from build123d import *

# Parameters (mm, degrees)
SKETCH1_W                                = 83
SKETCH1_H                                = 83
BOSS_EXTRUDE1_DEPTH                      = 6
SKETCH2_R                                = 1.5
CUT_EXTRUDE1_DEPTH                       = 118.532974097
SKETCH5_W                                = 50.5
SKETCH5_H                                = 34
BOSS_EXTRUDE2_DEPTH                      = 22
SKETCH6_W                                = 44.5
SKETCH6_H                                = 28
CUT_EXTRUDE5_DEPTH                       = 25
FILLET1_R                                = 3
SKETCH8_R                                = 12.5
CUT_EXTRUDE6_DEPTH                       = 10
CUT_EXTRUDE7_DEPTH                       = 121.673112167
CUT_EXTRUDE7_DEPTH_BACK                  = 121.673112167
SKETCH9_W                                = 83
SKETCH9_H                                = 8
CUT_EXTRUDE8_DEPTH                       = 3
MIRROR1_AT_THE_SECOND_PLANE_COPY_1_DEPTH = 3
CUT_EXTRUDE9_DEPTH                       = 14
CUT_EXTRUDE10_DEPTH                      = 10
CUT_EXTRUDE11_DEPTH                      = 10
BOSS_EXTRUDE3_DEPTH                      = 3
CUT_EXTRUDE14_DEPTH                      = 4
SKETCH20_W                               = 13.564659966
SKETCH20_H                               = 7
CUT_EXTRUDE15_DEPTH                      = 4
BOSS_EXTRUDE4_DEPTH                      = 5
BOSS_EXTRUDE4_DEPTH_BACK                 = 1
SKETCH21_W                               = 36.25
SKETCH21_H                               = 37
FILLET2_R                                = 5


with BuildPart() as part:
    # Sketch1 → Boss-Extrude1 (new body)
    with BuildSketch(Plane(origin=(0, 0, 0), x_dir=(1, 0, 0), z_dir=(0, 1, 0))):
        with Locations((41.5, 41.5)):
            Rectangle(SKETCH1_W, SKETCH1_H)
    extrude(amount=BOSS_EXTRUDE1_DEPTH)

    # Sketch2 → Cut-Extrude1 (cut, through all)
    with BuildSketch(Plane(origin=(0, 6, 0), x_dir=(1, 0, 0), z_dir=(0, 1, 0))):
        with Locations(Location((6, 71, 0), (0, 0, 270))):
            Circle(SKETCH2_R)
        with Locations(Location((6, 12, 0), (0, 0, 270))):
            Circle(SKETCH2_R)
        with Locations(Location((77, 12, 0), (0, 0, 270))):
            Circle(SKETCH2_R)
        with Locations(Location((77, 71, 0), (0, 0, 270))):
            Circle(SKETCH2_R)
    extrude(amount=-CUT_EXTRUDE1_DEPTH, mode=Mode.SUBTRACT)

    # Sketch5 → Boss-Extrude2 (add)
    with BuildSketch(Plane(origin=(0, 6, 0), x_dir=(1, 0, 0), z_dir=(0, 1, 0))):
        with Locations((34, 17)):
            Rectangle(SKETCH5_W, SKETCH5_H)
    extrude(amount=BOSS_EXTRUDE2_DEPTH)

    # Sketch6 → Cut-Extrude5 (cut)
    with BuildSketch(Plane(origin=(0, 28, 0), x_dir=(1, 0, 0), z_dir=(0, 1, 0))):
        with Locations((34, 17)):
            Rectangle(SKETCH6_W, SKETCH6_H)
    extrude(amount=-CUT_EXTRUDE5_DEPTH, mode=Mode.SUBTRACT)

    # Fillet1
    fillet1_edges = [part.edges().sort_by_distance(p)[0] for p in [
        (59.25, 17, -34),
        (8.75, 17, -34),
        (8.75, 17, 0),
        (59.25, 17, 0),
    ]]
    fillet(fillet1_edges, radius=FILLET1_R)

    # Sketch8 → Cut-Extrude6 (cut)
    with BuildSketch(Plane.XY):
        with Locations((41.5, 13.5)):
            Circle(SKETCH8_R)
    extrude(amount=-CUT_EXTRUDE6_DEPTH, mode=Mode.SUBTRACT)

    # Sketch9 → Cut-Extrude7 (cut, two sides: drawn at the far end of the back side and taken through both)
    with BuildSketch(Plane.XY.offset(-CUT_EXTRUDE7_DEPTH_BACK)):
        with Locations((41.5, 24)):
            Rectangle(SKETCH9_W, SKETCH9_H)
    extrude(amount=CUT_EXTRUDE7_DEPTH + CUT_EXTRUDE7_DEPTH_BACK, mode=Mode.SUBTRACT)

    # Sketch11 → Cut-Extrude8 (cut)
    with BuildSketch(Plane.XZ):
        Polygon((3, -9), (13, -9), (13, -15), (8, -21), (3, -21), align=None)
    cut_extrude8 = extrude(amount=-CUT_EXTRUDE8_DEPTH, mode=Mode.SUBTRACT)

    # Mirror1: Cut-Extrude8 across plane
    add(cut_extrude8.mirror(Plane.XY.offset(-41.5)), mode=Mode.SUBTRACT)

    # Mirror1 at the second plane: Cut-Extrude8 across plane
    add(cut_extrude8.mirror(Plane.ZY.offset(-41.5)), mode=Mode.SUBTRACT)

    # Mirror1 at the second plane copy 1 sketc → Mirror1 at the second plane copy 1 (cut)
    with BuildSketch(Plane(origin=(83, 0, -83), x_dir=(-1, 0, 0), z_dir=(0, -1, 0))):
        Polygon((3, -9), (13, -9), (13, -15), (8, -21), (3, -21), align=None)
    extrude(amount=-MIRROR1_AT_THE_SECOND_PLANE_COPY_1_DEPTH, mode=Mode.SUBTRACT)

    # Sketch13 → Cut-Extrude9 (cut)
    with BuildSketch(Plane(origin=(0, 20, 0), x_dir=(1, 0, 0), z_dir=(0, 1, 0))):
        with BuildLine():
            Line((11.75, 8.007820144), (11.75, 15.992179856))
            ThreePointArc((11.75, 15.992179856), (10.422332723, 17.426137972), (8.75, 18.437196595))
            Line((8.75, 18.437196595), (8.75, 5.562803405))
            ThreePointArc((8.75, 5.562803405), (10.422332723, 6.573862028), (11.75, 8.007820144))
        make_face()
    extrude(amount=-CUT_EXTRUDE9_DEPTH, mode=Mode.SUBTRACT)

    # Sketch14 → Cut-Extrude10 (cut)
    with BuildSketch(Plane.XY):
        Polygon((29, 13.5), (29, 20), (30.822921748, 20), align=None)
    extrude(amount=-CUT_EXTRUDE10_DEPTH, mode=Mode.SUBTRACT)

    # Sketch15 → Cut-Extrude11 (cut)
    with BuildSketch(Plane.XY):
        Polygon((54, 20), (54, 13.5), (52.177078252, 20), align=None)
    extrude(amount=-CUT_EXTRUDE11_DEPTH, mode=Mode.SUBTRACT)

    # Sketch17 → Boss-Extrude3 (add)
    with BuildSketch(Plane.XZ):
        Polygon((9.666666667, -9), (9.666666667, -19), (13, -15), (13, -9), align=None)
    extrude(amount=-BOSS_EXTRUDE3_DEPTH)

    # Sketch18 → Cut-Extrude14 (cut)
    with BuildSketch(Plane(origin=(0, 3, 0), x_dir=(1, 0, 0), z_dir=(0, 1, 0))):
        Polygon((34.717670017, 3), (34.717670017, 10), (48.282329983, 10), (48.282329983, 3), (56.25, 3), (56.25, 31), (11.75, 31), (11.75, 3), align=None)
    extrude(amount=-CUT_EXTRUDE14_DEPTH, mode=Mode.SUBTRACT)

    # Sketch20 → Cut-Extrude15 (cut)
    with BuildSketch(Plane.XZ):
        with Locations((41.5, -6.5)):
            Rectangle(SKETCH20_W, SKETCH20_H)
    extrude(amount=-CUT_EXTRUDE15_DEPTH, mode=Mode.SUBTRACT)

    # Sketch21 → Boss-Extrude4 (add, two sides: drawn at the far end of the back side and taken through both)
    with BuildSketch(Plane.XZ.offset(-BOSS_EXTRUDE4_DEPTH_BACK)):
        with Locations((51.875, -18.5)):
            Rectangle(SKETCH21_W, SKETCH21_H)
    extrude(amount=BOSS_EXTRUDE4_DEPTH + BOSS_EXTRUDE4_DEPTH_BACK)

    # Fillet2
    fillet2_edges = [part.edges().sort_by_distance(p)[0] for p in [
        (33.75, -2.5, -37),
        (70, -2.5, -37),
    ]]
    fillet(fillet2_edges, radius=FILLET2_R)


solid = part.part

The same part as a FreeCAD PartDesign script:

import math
import FreeCAD as App
import Part
import Sketcher

V = App.Vector
Q = App.Units.Quantity


def edges_at(feature, points):
    """Names of the edges that pass closest to the given points."""
    edges = feature.Shape.Edges
    near = lambda p: min(range(len(edges)), key=lambda i: edges[i].distToShape(Part.Vertex(*p))[0])
    return sorted({f"Edge{near(p) + 1}" for p in points})


def add_polygon(sketch, points):
    """Adds a closed chain of lines whose ends are joined by coincident constraints."""
    first, n = sketch.GeometryCount, len(points)
    for a, b in zip(points, points[1:] + points[:1]):
        sketch.addGeometry(Part.LineSegment(App.Vector(*a, 0), App.Vector(*b, 0)), False)
    for i in range(n):
        sketch.addConstraint(Sketcher.Constraint("Coincident", first + i, 2, first + (i + 1) % n, 1))

doc = App.newDocument("Part")
body = doc.addObject("PartDesign::Body", "Body")

sketch1 = body.newObject("Sketcher::SketchObject", "Sketch")
sketch1.AttachmentSupport = (doc.getObject("XZ_Plane"), [""])
sketch1.MapMode = "FlatFace"
add_polygon(sketch1, [(0, -83), (0, 0), (83, 0), (83, -83)])
sketch1.addConstraint([
    Sketcher.Constraint("Vertical", 0),
    Sketcher.Constraint("Horizontal", 1),
    Sketcher.Constraint("Vertical", 2),
    Sketcher.Constraint("Horizontal", 3),
    Sketcher.Constraint("Coincident", 0, 2, -1, 1),
    Sketcher.Constraint("Equal", 3, 0),
    Sketcher.Constraint("DistanceX", 1, 1, 1, 2, Q("83 mm")),
])
pad1 = body.newObject("PartDesign::Pad", "Pad")
pad1.Profile = sketch1
pad1.Length = 6
pad1.Reversed = True

sketch2 = body.newObject("Sketcher::SketchObject", "Sketch001")
sketch2.AttachmentSupport = (doc.getObject("XZ_Plane"), [""])
sketch2.MapMode = "FlatFace"
sketch2.AttachmentOffset = App.Placement(V(0, 0, -6), App.Rotation())
sketch2.addGeometry([
    Part.Circle(V(6, -71, 0), V(0, 0, 1), 1.5),
    Part.Circle(V(6, -12, 0), V(0, 0, 1), 1.5),
    Part.Circle(V(77, -12, 0), V(0, 0, 1), 1.5),
    Part.Circle(V(77, -71, 0), V(0, 0, 1), 1.5),
], False)
sketch2.addConstraint([
    Sketcher.Constraint("Equal", 0, 1),
    Sketcher.Constraint("Equal", 1, 2),
    Sketcher.Constraint("Equal", 2, 3),
    Sketcher.Constraint("Horizontal", 1, 3, 2, 3),
    Sketcher.Constraint("Horizontal", 0, 3, 3, 3),
    Sketcher.Constraint("Vertical", 0, 3, 1, 3),
    Sketcher.Constraint("Vertical", 2, 3, 3, 3),
    Sketcher.Constraint("Diameter", 0, Q("3 mm")),
    Sketcher.Constraint("DistanceX", -1, 1, 0, 3, Q("6 mm")),
    Sketcher.Constraint("DistanceY", 0, 3, -1, 1, Q("71 mm")),
    Sketcher.Constraint("DistanceY", 1, 3, -1, 1, Q("12 mm")),
    Sketcher.Constraint("DistanceX", -1, 1, 2, 3, Q("77 mm")),
])
pocket1 = body.newObject("PartDesign::Pocket", "Pocket")
pocket1.Profile = sketch2
pocket1.Type = "ThroughAll"
pocket1.Reversed = True

sketch3 = body.newObject("Sketcher::SketchObject", "Sketch002")
sketch3.AttachmentSupport = (doc.getObject("XZ_Plane"), [""])
sketch3.MapMode = "FlatFace"
sketch3.AttachmentOffset = App.Placement(V(0, 0, -6), App.Rotation())
add_polygon(sketch3, [(9, -34), (9, 0), (59, 0), (59, -34)])
sketch3.addConstraint([
    Sketcher.Constraint("Vertical", 0),
    Sketcher.Constraint("Horizontal", 1),
    Sketcher.Constraint("Vertical", 2),
    Sketcher.Constraint("Horizontal", 3),
    Sketcher.Constraint("PointOnObject", 0, 2, -1),
    Sketcher.Constraint("DistanceY", 0, 1, 0, 2, Q("34 mm")),
    Sketcher.Constraint("DistanceX", 1, 1, 1, 2, Q("50.5 mm")),
    Sketcher.Constraint("DistanceX", -1, 1, 0, 2, Q("8.75 mm")),
])
pad2 = body.newObject("PartDesign::Pad", "Pad001")
pad2.Profile = sketch3
pad2.Length = 22
pad2.Reversed = True

sketch4 = body.newObject("Sketcher::SketchObject", "Sketch003")
sketch4.AttachmentSupport = (doc.getObject("XZ_Plane"), [""])
sketch4.MapMode = "FlatFace"
sketch4.AttachmentOffset = App.Placement(V(0, 0, -28), App.Rotation())
add_polygon(sketch4, [(12, -31), (12, -3), (56, -3), (56, -31)])
sketch4.addConstraint([
    Sketcher.Constraint("Vertical", 0),
    Sketcher.Constraint("Horizontal", 1),
    Sketcher.Constraint("Vertical", 2),
    Sketcher.Constraint("Horizontal", 3),
    Sketcher.Constraint("DistanceY", 0, 1, 0, 2, Q("28 mm")),
    Sketcher.Constraint("DistanceX", 1, 1, 1, 2, Q("44.5 mm")),
    Sketcher.Constraint("DistanceY", 0, 2, -1, 1, Q("3 mm")),
    Sketcher.Constraint("DistanceX", -1, 1, 0, 2, Q("11.75 mm")),
])
pocket2 = body.newObject("PartDesign::Pocket", "Pocket001")
pocket2.Profile = sketch4
pocket2.Length = 25
pocket2.Reversed = True
doc.recompute()

fillet = body.newObject("PartDesign::Fillet", "Fillet")
fillet.Base = (pocket2, edges_at(pocket2, [
    (59.25, 17, -34),
    (8.75, 17, -34),
    (8.75, 17, 0),
    (59.25, 17, 0),
]))
fillet.Radius = 3

sketch5 = body.newObject("Sketcher::SketchObject", "Sketch004")
sketch5.AttachmentSupport = (doc.getObject("XY_Plane"), [""])
sketch5.MapMode = "FlatFace"
sketch5.addGeometry(Part.Circle(V(42, 14, 0), V(0, 0, 1), 12), False)
sketch5.addConstraint([
    Sketcher.Constraint("Diameter", 0, Q("25 mm")),
    Sketcher.Constraint("DistanceX", -1, 1, 0, 3, Q("41.5 mm")),
    Sketcher.Constraint("DistanceY", -1, 1, 0, 3, Q("13.5 mm")),
])
pocket3 = body.newObject("PartDesign::Pocket", "Pocket002")
pocket3.Profile = sketch5
pocket3.Length = 10

sketch6 = body.newObject("Sketcher::SketchObject", "Sketch005")
sketch6.AttachmentSupport = (doc.getObject("XY_Plane"), [""])
sketch6.MapMode = "FlatFace"
add_polygon(sketch6, [(0, 28), (0, 20), (83, 20), (83, 28)])
sketch6.addConstraint([
    Sketcher.Constraint("Vertical", 0),
    Sketcher.Constraint("Horizontal", 1),
    Sketcher.Constraint("Vertical", 2),
    Sketcher.Constraint("Horizontal", 3),
    Sketcher.Constraint("PointOnObject", 0, 2, -2),
    Sketcher.Constraint("DistanceX", 1, 1, 1, 2, Q("83 mm")),
    Sketcher.Constraint("DistanceY", 0, 2, 0, 1, Q("8 mm")),
    Sketcher.Constraint("DistanceY", -1, 1, 0, 2, Q("20 mm")),
])
pocket4 = body.newObject("PartDesign::Pocket", "Pocket003")
pocket4.Profile = sketch6
pocket4.Type = "ThroughAll"
pocket4.Midplane = True

sketch7 = body.newObject("Sketcher::SketchObject", "Sketch006")
sketch7.AttachmentSupport = (doc.getObject("XZ_Plane"), [""])
sketch7.MapMode = "FlatFace"
add_polygon(sketch7, [(13, -9), (3, -9), (3, -21), (8, -21), (13, -15)])
sketch7.addConstraint([
    Sketcher.Constraint("Horizontal", 0),
    Sketcher.Constraint("Vertical", 1),
    Sketcher.Constraint("Horizontal", 2),
    Sketcher.Constraint("Vertical", 4),
    Sketcher.Constraint("DistanceX", 0, 2, 0, 1, Q("10 mm")),
    Sketcher.Constraint("DistanceX", 2, 1, 2, 2, Q("5 mm")),
    Sketcher.Constraint("DistanceY", 1, 2, 1, 1, Q("12 mm")),
    Sketcher.Constraint("DistanceY", 4, 1, 4, 2, Q("6 mm")),
    Sketcher.Constraint("DistanceX", -1, 1, 0, 2, Q("3 mm")),
    Sketcher.Constraint("DistanceY", 0, 2, -1, 1, Q("9 mm")),
])
pocket5 = body.newObject("PartDesign::Pocket", "Pocket004")
pocket5.Profile = sketch7
pocket5.Length = 3
doc.recompute()

datumplane = body.newObject("PartDesign::Plane", "DatumPlane")
datumplane.AttachmentSupport = (doc.getObject("XY_Plane"), [""])
datumplane.MapMode = "FlatFace"
datumplane.AttachmentOffset = App.Placement(V(0, 0, -41.5), App.Rotation())
mirrored = body.newObject("PartDesign::Mirrored", "Mirrored")
mirrored.Originals = [pocket5]
mirrored.MirrorPlane = (datumplane, [""])
body.Tip = mirrored
doc.recompute()

datumplane2 = body.newObject("PartDesign::Plane", "DatumPlane001")
datumplane2.AttachmentSupport = (doc.getObject("YZ_Plane"), [""])
datumplane2.MapMode = "FlatFace"
datumplane2.AttachmentOffset = App.Placement(V(0, 0, 41.5), App.Rotation())
mirrored2 = body.newObject("PartDesign::Mirrored", "Mirrored001")
mirrored2.Originals = [pocket5]
mirrored2.MirrorPlane = (datumplane2, [""])
body.Tip = mirrored2

sketch8 = body.newObject("Sketcher::SketchObject", "Sketch007")
sketch8.AttachmentSupport = (doc.getObject("XZ_Plane"), [""])
sketch8.MapMode = "FlatFace"
add_polygon(sketch8, [(70, -74), (80, -74), (80, -62), (75, -62), (70, -68)])
sketch8.addConstraint([
    Sketcher.Constraint("Horizontal", 0),
    Sketcher.Constraint("Vertical", 1),
    Sketcher.Constraint("Horizontal", 2),
    Sketcher.Constraint("Vertical", 4),
    Sketcher.Constraint("DistanceX", 0, 1, 0, 2, Q("10 mm")),
    Sketcher.Constraint("DistanceX", 2, 2, 2, 1, Q("5 mm")),
    Sketcher.Constraint("DistanceY", 1, 1, 1, 2, Q("12 mm")),
    Sketcher.Constraint("DistanceY", 4, 2, 4, 1, Q("6 mm")),
    Sketcher.Constraint("DistanceX", -1, 1, 0, 2, Q("80 mm")),
    Sketcher.Constraint("DistanceY", 0, 2, -1, 1, Q("74 mm")),
])
pocket6 = body.newObject("PartDesign::Pocket", "Pocket005")
pocket6.Profile = sketch8
pocket6.Length = 3

sketch9 = body.newObject("Sketcher::SketchObject", "Sketch008")
sketch9.AttachmentSupport = (doc.getObject("XZ_Plane"), [""])
sketch9.MapMode = "FlatFace"
sketch9.AttachmentOffset = App.Placement(V(0, 0, -20), App.Rotation())
sketch9.addGeometry([
    Part.LineSegment(V(11.8, -8, 0), V(11.8, -16, 0)),
    Part.ArcOfCircle(Part.Circle(V(6, -12, 0), V(0, 0, 1), 7), math.radians(-67), math.radians(-35)),
    Part.LineSegment(V(8.8, -18.4, 0), V(8.8, -5.6, 0)),
    Part.ArcOfCircle(Part.Circle(V(6, -12, 0), V(0, 0, 1), 7), math.radians(35), math.radians(67)),
], False)
sketch9.addConstraint([
    Sketcher.Constraint("Coincident", 0, 2, 1, 2),
    Sketcher.Constraint("Coincident", 1, 1, 2, 1),
    Sketcher.Constraint("Coincident", 2, 2, 3, 2),
    Sketcher.Constraint("Coincident", 3, 1, 0, 1),
    Sketcher.Constraint("Vertical", 0),
    Sketcher.Constraint("Vertical", 2),
    Sketcher.Constraint("Coincident", 3, 3, 1, 3),
    Sketcher.Constraint("Equal", 1, 3),
    Sketcher.Constraint("Radius", 1, Q("7 mm")),
    Sketcher.Constraint("DistanceX", -1, 1, 1, 3, Q("6 mm")),
    Sketcher.Constraint("DistanceY", 1, 3, -1, 1, Q("12 mm")),
    Sketcher.Constraint("DistanceX", 1, 1, 0, 2, Q("3 mm")),
    Sketcher.Constraint("DistanceX", -1, 1, 0, 2, Q("11.75 mm")),
])
pocket7 = body.newObject("PartDesign::Pocket", "Pocket006")
pocket7.Profile = sketch9
pocket7.Length = 14
pocket7.Reversed = True

sketch10 = body.newObject("Sketcher::SketchObject", "Sketch009")
sketch10.AttachmentSupport = (doc.getObject("XY_Plane"), [""])
sketch10.MapMode = "FlatFace"
add_polygon(sketch10, [(29, 20), (29, 13.5), (30.8, 20)])
sketch10.addConstraint([
    Sketcher.Constraint("Vertical", 0),
    Sketcher.Constraint("Horizontal", 2),
    Sketcher.Constraint("DistanceY", 0, 2, 0, 1, Q("6.5 mm")),
    Sketcher.Constraint("DistanceX", -1, 1, 0, 2, Q("29 mm")),
    Sketcher.Constraint("DistanceY", -1, 1, 1, 2, Q("20 mm")),
    Sketcher.Constraint("DistanceX", 2, 2, 2, 1, Q("1.822922 mm")),
])
pocket8 = body.newObject("PartDesign::Pocket", "Pocket007")
pocket8.Profile = sketch10
pocket8.Length = 10

sketch11 = body.newObject("Sketcher::SketchObject", "Sketch010")
sketch11.AttachmentSupport = (doc.getObject("XY_Plane"), [""])
sketch11.MapMode = "FlatFace"
add_polygon(sketch11, [(54, 13.5), (54, 20), (52.2, 20)])
sketch11.addConstraint([
    Sketcher.Constraint("Vertical", 0),
    Sketcher.Constraint("Horizontal", 1),
    Sketcher.Constraint("DistanceY", 0, 1, 0, 2, Q("6.5 mm")),
    Sketcher.Constraint("DistanceX", -1, 1, 0, 2, Q("54 mm")),
    Sketcher.Constraint("DistanceY", -1, 1, 0, 2, Q("20 mm")),
    Sketcher.Constraint("DistanceX", 1, 2, 1, 1, Q("1.822922 mm")),
])
pocket9 = body.newObject("PartDesign::Pocket", "Pocket008")
pocket9.Profile = sketch11
pocket9.Length = 10

sketch12 = body.newObject("Sketcher::SketchObject", "Sketch011")
sketch12.AttachmentSupport = (doc.getObject("XZ_Plane"), [""])
sketch12.MapMode = "FlatFace"
add_polygon(sketch12, [(9.7, -9), (9.7, -19), (13, -15), (13, -9)])
sketch12.addConstraint([
    Sketcher.Constraint("Vertical", 0),
    Sketcher.Constraint("Vertical", 2),
    Sketcher.Constraint("Horizontal", 3),
    Sketcher.Constraint("DistanceY", 0, 2, 0, 1, Q("10 mm")),
    Sketcher.Constraint("DistanceY", 2, 1, 2, 2, Q("6 mm")),
    Sketcher.Constraint("DistanceY", 0, 2, -1, 1, Q("19 mm")),
    Sketcher.Constraint("DistanceX", -1, 1, 1, 2, Q("13 mm")),
    Sketcher.Constraint("DistanceX", 3, 2, 3, 1, Q("3.333333 mm")),
])
pad3 = body.newObject("PartDesign::Pad", "Pad002")
pad3.Profile = sketch12
pad3.Length = 3
pad3.Reversed = True

sketch13 = body.newObject("Sketcher::SketchObject", "Sketch012")
sketch13.AttachmentSupport = (doc.getObject("XZ_Plane"), [""])
sketch13.MapMode = "FlatFace"
sketch13.AttachmentOffset = App.Placement(V(0, 0, -3), App.Rotation())
add_polygon(sketch13, [(35, -3), (35, -10), (48, -10), (48, -3), (56, -3), (56, -31), (12, -31), (12, -3)])
sketch13.addConstraint([
    Sketcher.Constraint("Vertical", 0),
    Sketcher.Constraint("Horizontal", 1),
    Sketcher.Constraint("Vertical", 2),
    Sketcher.Constraint("Horizontal", 3),
    Sketcher.Constraint("Vertical", 4),
    Sketcher.Constraint("Horizontal", 5),
    Sketcher.Constraint("Vertical", 6),
    Sketcher.Constraint("Horizontal", 7),
    Sketcher.Constraint("Horizontal", 3, 2, 6, 2),
    Sketcher.Constraint("DistanceY", 0, 2, 0, 1, Q("7 mm")),
    Sketcher.Constraint("DistanceY", 4, 2, 4, 1, Q("28 mm")),
    Sketcher.Constraint("DistanceX", 5, 2, 5, 1, Q("44.5 mm")),
    Sketcher.Constraint("DistanceY", 0, 2, -1, 1, Q("10 mm")),
    Sketcher.Constraint("DistanceX", -1, 1, 3, 2, Q("56.25 mm")),
    Sketcher.Constraint("DistanceX", 1, 1, 1, 2, Q("13.56466 mm")),
    Sketcher.Constraint("DistanceX", 3, 1, 3, 2, Q("7.96767 mm")),
])
pocket10 = body.newObject("PartDesign::Pocket", "Pocket009")
pocket10.Profile = sketch13
pocket10.Length = 4
pocket10.Reversed = True

sketch14 = body.newObject("Sketcher::SketchObject", "Sketch013")
sketch14.AttachmentSupport = (doc.getObject("XZ_Plane"), [""])
sketch14.MapMode = "FlatFace"
add_polygon(sketch14, [(35, -3), (35, -10), (48, -10), (48, -3)])
sketch14.addConstraint([
    Sketcher.Constraint("Vertical", 0),
    Sketcher.Constraint("Horizontal", 1),
    Sketcher.Constraint("Vertical", 2),
    Sketcher.Constraint("Horizontal", 3),
    Sketcher.Constraint("DistanceY", 0, 2, 0, 1, Q("7 mm")),
    Sketcher.Constraint("DistanceY", 0, 2, -1, 1, Q("10 mm")),
    Sketcher.Constraint("DistanceX", 1, 1, 1, 2, Q("13.56466 mm")),
    Sketcher.Constraint("DistanceX", -1, 1, 0, 2, Q("34.71767 mm")),
])
pocket11 = body.newObject("PartDesign::Pocket", "Pocket010")
pocket11.Profile = sketch14
pocket11.Length = 4

sketch15 = body.newObject("Sketcher::SketchObject", "Sketch014")
sketch15.AttachmentSupport = (doc.getObject("XZ_Plane"), [""])
sketch15.MapMode = "FlatFace"
add_polygon(sketch15, [(34, 0), (34, -37), (70, -37), (70, 0)])
sketch15.addConstraint([
    Sketcher.Constraint("Vertical", 0),
    Sketcher.Constraint("Horizontal", 1),
    Sketcher.Constraint("Vertical", 2),
    Sketcher.Constraint("Horizontal", 3),
    Sketcher.Constraint("PointOnObject", 2, 2, -1),
    Sketcher.Constraint("DistanceY", 0, 2, 0, 1, Q("37 mm")),
    Sketcher.Constraint("DistanceX", -1, 1, 1, 2, Q("70 mm")),
    Sketcher.Constraint("DistanceX", 1, 1, 1, 2, Q("36.25 mm")),
])
pad4 = body.newObject("PartDesign::Pad", "Pad003")
pad4.Profile = sketch15
pad4.Type = "TwoLengths"
pad4.Length = 5
pad4.Length2 = 1
doc.recompute()

fillet2 = body.newObject("PartDesign::Fillet", "Fillet001")
fillet2.Base = (pad4, edges_at(pad4, [(33.75, -2.5, -37), (70, -2.5, -37)]))
fillet2.Radius = 5

doc.recompute()
